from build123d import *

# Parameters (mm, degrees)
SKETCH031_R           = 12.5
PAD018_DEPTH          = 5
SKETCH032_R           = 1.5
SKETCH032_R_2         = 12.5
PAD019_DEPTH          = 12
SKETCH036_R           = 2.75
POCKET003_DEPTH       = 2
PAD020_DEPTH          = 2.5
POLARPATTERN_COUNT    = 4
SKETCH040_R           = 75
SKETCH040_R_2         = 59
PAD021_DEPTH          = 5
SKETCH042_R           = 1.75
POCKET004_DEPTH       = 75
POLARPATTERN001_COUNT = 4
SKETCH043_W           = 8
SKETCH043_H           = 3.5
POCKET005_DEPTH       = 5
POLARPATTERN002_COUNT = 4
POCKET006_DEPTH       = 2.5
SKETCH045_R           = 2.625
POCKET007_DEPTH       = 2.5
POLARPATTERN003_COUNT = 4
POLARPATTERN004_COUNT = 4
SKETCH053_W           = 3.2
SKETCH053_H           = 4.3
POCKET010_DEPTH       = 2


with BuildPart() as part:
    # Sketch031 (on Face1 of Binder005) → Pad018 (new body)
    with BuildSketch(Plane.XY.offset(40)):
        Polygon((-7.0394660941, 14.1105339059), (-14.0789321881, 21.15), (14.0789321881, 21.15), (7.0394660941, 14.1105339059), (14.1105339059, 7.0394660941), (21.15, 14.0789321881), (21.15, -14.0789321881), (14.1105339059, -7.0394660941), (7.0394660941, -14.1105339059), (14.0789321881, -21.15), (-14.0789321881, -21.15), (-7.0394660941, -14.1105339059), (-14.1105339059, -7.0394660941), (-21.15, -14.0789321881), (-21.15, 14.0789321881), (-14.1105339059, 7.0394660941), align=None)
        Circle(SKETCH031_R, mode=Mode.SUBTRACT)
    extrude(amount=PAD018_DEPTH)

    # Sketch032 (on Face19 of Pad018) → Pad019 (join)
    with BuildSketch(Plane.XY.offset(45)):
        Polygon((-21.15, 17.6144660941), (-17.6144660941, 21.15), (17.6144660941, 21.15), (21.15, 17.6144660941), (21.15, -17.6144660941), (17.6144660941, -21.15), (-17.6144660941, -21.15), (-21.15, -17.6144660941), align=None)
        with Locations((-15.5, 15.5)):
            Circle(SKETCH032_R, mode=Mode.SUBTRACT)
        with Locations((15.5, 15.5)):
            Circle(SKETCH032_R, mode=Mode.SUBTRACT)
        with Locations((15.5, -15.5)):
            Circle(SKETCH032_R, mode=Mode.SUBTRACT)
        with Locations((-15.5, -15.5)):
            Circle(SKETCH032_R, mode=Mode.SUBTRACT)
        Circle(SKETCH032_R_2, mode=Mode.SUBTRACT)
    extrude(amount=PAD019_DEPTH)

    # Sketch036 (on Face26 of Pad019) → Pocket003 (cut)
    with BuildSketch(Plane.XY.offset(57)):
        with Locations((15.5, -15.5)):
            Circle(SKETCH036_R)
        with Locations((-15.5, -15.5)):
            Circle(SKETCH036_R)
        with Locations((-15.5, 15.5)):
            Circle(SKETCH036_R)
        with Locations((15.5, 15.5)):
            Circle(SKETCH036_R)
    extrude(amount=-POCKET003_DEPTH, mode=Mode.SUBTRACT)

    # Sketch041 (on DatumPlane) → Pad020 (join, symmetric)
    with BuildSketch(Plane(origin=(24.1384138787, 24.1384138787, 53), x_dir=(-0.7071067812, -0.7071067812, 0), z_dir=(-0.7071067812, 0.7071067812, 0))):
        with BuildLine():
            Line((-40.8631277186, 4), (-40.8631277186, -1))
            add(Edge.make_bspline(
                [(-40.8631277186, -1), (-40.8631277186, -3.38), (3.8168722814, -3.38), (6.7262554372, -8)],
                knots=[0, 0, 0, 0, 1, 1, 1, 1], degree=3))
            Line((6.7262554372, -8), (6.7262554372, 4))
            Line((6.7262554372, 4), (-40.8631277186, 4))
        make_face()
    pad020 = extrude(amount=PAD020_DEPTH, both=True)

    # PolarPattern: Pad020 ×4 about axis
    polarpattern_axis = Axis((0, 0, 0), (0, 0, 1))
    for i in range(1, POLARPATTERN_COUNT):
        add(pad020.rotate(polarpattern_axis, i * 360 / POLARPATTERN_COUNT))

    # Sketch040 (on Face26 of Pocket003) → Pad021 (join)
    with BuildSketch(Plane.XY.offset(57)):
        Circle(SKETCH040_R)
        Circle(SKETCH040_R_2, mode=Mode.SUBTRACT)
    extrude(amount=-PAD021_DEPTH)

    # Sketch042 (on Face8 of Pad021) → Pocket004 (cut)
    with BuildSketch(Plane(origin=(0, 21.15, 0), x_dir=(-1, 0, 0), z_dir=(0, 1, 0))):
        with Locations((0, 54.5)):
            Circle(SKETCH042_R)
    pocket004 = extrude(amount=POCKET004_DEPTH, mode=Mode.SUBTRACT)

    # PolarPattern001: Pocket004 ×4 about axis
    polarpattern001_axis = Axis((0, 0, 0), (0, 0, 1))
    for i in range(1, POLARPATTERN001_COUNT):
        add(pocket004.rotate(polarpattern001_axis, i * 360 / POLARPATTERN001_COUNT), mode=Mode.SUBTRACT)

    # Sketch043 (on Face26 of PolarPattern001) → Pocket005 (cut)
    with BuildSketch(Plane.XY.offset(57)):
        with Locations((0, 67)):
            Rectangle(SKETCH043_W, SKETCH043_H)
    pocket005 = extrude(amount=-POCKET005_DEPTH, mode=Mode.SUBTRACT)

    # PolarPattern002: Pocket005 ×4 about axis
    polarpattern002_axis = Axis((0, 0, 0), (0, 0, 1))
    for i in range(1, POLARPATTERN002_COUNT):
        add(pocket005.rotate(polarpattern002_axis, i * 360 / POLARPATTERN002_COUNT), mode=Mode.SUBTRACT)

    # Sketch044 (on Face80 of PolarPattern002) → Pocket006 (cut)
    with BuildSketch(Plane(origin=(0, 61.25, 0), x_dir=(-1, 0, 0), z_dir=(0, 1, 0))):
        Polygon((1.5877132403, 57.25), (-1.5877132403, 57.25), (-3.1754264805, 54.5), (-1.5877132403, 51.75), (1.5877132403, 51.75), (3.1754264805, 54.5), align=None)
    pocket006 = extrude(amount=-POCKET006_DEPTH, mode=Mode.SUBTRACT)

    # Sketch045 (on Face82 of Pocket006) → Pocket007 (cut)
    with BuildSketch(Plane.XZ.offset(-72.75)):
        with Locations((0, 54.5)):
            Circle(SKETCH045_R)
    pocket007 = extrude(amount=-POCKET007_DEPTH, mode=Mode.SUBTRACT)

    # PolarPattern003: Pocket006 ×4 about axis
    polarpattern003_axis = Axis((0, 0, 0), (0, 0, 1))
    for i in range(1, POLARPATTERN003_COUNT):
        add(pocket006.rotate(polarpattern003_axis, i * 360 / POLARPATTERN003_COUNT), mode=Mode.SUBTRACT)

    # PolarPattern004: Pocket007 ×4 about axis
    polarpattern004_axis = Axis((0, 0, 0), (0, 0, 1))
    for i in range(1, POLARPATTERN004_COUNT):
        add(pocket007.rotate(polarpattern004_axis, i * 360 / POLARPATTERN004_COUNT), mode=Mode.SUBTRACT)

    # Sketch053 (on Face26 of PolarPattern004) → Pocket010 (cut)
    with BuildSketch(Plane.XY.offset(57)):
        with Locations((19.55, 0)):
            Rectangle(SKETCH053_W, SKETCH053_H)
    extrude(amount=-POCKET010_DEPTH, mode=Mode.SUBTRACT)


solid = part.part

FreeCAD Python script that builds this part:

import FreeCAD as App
import Part
import Sketcher
Q = App.Units.Quantity

doc = App.newDocument("Part")
body = doc.addObject("PartDesign::Body", "Body")

sketch1 = doc.addObject("Sketcher::SketchObject", "Sketch")
body.addObject(sketch1)
sketch1.AttachmentSupport = (doc.XY_Plane, [""])
sketch1.MapMode = "FlatFace"
sketch1.AttachmentOffset = App.Placement(App.Vector(0, 0, 40), App.Rotation())
sketch1.addGeometry(Part.LineSegment(App.Vector(-14, 21, 0), App.Vector(-7, 14, 0)), False)
sketch1.addGeometry(Part.LineSegment(App.Vector(-7, 14, 0), App.Vector(-14, 7, 0)), False)
sketch1.addGeometry(Part.LineSegment(App.Vector(-14, 7, 0), App.Vector(-21, 14, 0)), False)
sketch1.addGeometry(Part.LineSegment(App.Vector(-21, 14, 0), App.Vector(-21, -14, 0)), False)
sketch1.addGeometry(Part.LineSegment(App.Vector(-21, -14, 0), App.Vector(-14, -7, 0)), False)
sketch1.addGeometry(Part.LineSegment(App.Vector(-14, -7, 0), App.Vector(-7, -14, 0)), False)
sketch1.addGeometry(Part.LineSegment(App.Vector(-7, -14, 0), App.Vector(-14, -21, 0)), False)
sketch1.addGeometry(Part.LineSegment(App.Vector(-14, -21, 0), App.Vector(14, -21, 0)), False)
sketch1.addGeometry(Part.LineSegment(App.Vector(14, -21, 0), App.Vector(7, -14, 0)), False)
sketch1.addGeometry(Part.LineSegment(App.Vector(7, -14, 0), App.Vector(14, -7, 0)), False)
sketch1.addGeometry(Part.LineSegment(App.Vector(14, -7, 0), App.Vector(21, -14, 0)), False)
sketch1.addGeometry(Part.LineSegment(App.Vector(21, -14, 0), App.Vector(21, 14, 0)), False)
sketch1.addGeometry(Part.LineSegment(App.Vector(21, 14, 0), App.Vector(14, 7, 0)), False)
sketch1.addGeometry(Part.LineSegment(App.Vector(14, 7, 0), App.Vector(7, 14, 0)), False)
sketch1.addGeometry(Part.LineSegment(App.Vector(7, 14, 0), App.Vector(14, 21, 0)), False)
sketch1.addGeometry(Part.LineSegment(App.Vector(14, 21, 0), App.Vector(-14, 21, 0)), False)
sketch1.addGeometry(Part.Circle(App.Vector(0, 0, 0), App.Vector(0, 0, 1), 12), False)
sketch1.addConstraint(Sketcher.Constraint("Coincident", 0, 2, 1, 1))
sketch1.addConstraint(Sketcher.Constraint("Coincident", 1, 2, 2, 1))
sketch1.addConstraint(Sketcher.Constraint("Coincident", 2, 2, 3, 1))
sketch1.addConstraint(Sketcher.Constraint("Coincident", 3, 2, 4, 1))
sketch1.addConstraint(Sketcher.Constraint("Coincident", 4, 2, 5, 1))
sketch1.addConstraint(Sketcher.Constraint("Coincident", 5, 2, 6, 1))
sketch1.addConstraint(Sketcher.Constraint("Coincident", 6, 2, 7, 1))
sketch1.addConstraint(Sketcher.Constraint("Coincident", 7, 2, 8, 1))
sketch1.addConstraint(Sketcher.Constraint("Coincident", 8, 2, 9, 1))
sketch1.addConstraint(Sketcher.Constraint("Coincident", 9, 2, 10, 1))
sketch1.addConstraint(Sketcher.Constraint("Coincident", 10, 2, 11, 1))
sketch1.addConstraint(Sketcher.Constraint("Coincident", 11, 2, 12, 1))
sketch1.addConstraint(Sketcher.Constraint("Coincident", 12, 2, 13, 1))
sketch1.addConstraint(Sketcher.Constraint("Coincident", 13, 2, 14, 1))
sketch1.addConstraint(Sketcher.Constraint("Coincident", 14, 2, 15, 1))
sketch1.addConstraint(Sketcher.Constraint("Coincident", 15, 2, 0, 1))
sketch1.addConstraint(Sketcher.Constraint("Vertical", 3))
sketch1.addConstraint(Sketcher.Constraint("Horizontal", 7))
sketch1.addConstraint(Sketcher.Constraint("Vertical", 11))
sketch1.addConstraint(Sketcher.Constraint("Horizontal", 15))
sketch1.addConstraint(Sketcher.Constraint("Coincident", 16, 3, -1, 1))
sketch1.addConstraint(Sketcher.Constraint("Symmetric", 0, 2, 8, 2, -1, 1))
sketch1.addConstraint(Sketcher.Constraint("Symmetric", 1, 2, 9, 2, -1, 1))
sketch1.addConstraint(Sketcher.Constraint("Symmetric", 2, 2, 10, 2, -1, 1))
sketch1.addConstraint(Sketcher.Constraint("Symmetric", 4, 2, 12, 2, -1, 1))
sketch1.addConstraint(Sketcher.Constraint("Symmetric", 5, 2, 13, 2, -1, 1))
sketch1.addConstraint(Sketcher.Constraint("Symmetric", 6, 2, 14, 2, -1, 1))
sketch1.addConstraint(Sketcher.Constraint("Symmetric", 5, 2, 8, 2, -2))
sketch1.addConstraint(Sketcher.Constraint("Symmetric", 4, 2, 9, 2, -2))
sketch1.addConstraint(Sketcher.Constraint("Perpendicular", 0, 1))
sketch1.addConstraint(Sketcher.Constraint("Perpendicular", 1, 2))
sketch1.addConstraint(Sketcher.Constraint("Perpendicular", 2, 4))
sketch1.addConstraint(Sketcher.Constraint("Perpendicular", 4, 5))
sketch1.addConstraint(Sketcher.Constraint("Perpendicular", 5, 6))
sketch1.addConstraint(Sketcher.Constraint("Perpendicular", 6, 8))
sketch1.addConstraint(Sketcher.Constraint("Perpendicular", 10, 12))
sketch1.addConstraint(Sketcher.Constraint("Equal", 15, 3))
sketch1.addConstraint(Sketcher.Constraint("Equal", 0, 2))
sketch1.addConstraint(Sketcher.Constraint("Diameter", 16, Q("25 mm")))
sketch1.addConstraint(Sketcher.Constraint("Distance", 1, Q("10 mm")))
sketch1.addConstraint(Sketcher.Constraint("DistanceX", 2, 2, -1, 1, Q("21.15 mm")))
sketch1.addConstraint(Sketcher.Constraint("DistanceY", 4, 2, 0, 2, Q("21.15 mm")))
pad1 = doc.addObject("PartDesign::Pad", "Pad")
body.addObject(pad1)
pad1.Profile = sketch1
pad1.Length = 5

sketch2 = doc.addObject("Sketcher::SketchObject", "Sketch001")
body.addObject(sketch2)
sketch2.AttachmentSupport = (doc.XY_Plane, [""])
sketch2.MapMode = "FlatFace"
sketch2.AttachmentOffset = App.Placement(App.Vector(0, 0, 45), App.Rotation())
sketch2.addGeometry(Part.LineSegment(App.Vector(-17.6, 21.1, 0), App.Vector(-21.1, 17.6, 0)), False)
sketch2.addGeometry(Part.LineSegment(App.Vector(-21.1, 17.6, 0), App.Vector(-21.1, -17.6, 0)), False)
sketch2.addGeometry(Part.LineSegment(App.Vector(-21.1, -17.6, 0), App.Vector(-17.6, -21.1, 0)), False)
sketch2.addGeometry(Part.LineSegment(App.Vector(-17.6, -21.1, 0), App.Vector(17.6, -21.1, 0)), False)
sketch2.addGeometry(Part.LineSegment(App.Vector(17.6, -21.1, 0), App.Vector(21.1, -17.6, 0)), False)
sketch2.addGeometry(Part.LineSegment(App.Vector(21.1, -17.6, 0), App.Vector(21.1, 17.6, 0)), False)
sketch2.addGeometry(Part.LineSegment(App.Vector(21.1, 17.6, 0), App.Vector(17.6, 21.1, 0)), False)
sketch2.addGeometry(Part.LineSegment(App.Vector(17.6, 21.1, 0), App.Vector(-17.6, 21.1, 0)), False)
sketch2.addGeometry(Part.Circle(App.Vector(15.5, -15.5, 0), App.Vector(0, 0, 1), 1.5), False)
sketch2.addGeometry(Part.Circle(App.Vector(-15.5, -15.5, 0), App.Vector(0, 0, 1), 1.5), False)
sketch2.addGeometry(Part.Circle(App.Vector(15.5, 15.5, 0), App.Vector(0, 0, 1), 1.5), False)
sketch2.addGeometry(Part.Circle(App.Vector(0, 0, 0), App.Vector(0, 0, 1), 12.5), False)
sketch2.addGeometry(Part.Circle(App.Vector(-15.5, 15.5, 0), App.Vector(0, 0, 1), 1.5), False)
sketch2.addConstraint(Sketcher.Constraint("Coincident", 0, 2, 1, 1))
sketch2.addConstraint(Sketcher.Constraint("Coincident", 1, 2, 2, 1))
sketch2.addConstraint(Sketcher.Constraint("Coincident", 2, 2, 3, 1))
sketch2.addConstraint(Sketcher.Constraint("Coincident", 3, 2, 4, 1))
sketch2.addConstraint(Sketcher.Constraint("Coincident", 4, 2, 5, 1))
sketch2.addConstraint(Sketcher.Constraint("Coincident", 5, 2, 6, 1))
sketch2.addConstraint(Sketcher.Constraint("Coincident", 6, 2, 7, 1))
sketch2.addConstraint(Sketcher.Constraint("Coincident", 7, 2, 0, 1))
sketch2.addConstraint(Sketcher.Constraint("Vertical", 1))
sketch2.addConstraint(Sketcher.Constraint("Horizontal", 3))
sketch2.addConstraint(Sketcher.Constraint("Vertical", 5))
sketch2.addConstraint(Sketcher.Constraint("Horizontal", 7))
sketch2.addConstraint(Sketcher.Constraint("Coincident", 11, 3, -1, 1))
sketch2.addConstraint(Sketcher.Constraint("Equal", 8, 9))
sketch2.addConstraint(Sketcher.Constraint("Equal", 9, 10))
sketch2.addConstraint(Sketcher.Constraint("Equal", 10, 12))
sketch2.addConstraint(Sketcher.Constraint("Symmetric", 9, 3, 10, 3, -1, 1))
sketch2.addConstraint(Sketcher.Constraint("Symmetric", 8, 3, 12, 3, -1, 1))
sketch2.addConstraint(Sketcher.Constraint("Symmetric", 0, 2, 4, 2, -1, 1))
sketch2.addConstraint(Sketcher.Constraint("Symmetric", 2, 2, 6, 2, -1, 1))
sketch2.addConstraint(Sketcher.Constraint("Symmetric", 8, 3, 9, 3, -2))
sketch2.addConstraint(Sketcher.Constraint("Perpendicular", 0, 2))
sketch2.addConstraint(Sketcher.Constraint("Perpendicular", 2, 4))
sketch2.addConstraint(Sketcher.Constraint("Perpendicular", 4, 6))
sketch2.addConstraint(Sketcher.Constraint("Horizontal", 1, 2, 4, 2))
sketch2.addConstraint(Sketcher.Constraint("Vertical", 3, 2, 6, 2))
sketch2.addConstraint(Sketcher.Constraint("Equal", 7, 1))
sketch2.addConstraint(Sketcher.Constraint("Diameter", 8, Q("3 mm")))
sketch2.addConstraint(Sketcher.Constraint("Diameter", 11, Q("25 mm")))
sketch2.addConstraint(Sketcher.Constraint("Distance", 0, Q("5 mm")))
sketch2.addConstraint(Sketcher.Constraint("DistanceX", 9, 3, 8, 3, Q("31 mm")))
sketch2.addConstraint(Sketcher.Constraint("DistanceY", 8, 3, 10, 3, Q("31 mm")))
sketch2.addConstraint(Sketcher.Constraint("DistanceX", 0, 2, -1, 1, Q("21.15 mm")))
pad2 = doc.addObject("PartDesign::Pad", "Pad001")
body.addObject(pad2)
pad2.Profile = sketch2
pad2.Length = 12

sketch3 = doc.addObject("Sketcher::SketchObject", "Sketch002")
body.addObject(sketch3)
sketch3.AttachmentSupport = (doc.XY_Plane, [""])
sketch3.MapMode = "FlatFace"
sketch3.AttachmentOffset = App.Placement(App.Vector(0, 0, 57), App.Rotation())
sketch3.addGeometry(Part.Circle(App.Vector(15.5, -15.5, 0), App.Vector(0, 0, 1), 2.8), False)
sketch3.addGeometry(Part.Circle(App.Vector(-15.5, -15.5, 0), App.Vector(0, 0, 1), 2.8), False)
sketch3.addGeometry(Part.Circle(App.Vector(-15.5, 15.5, 0), App.Vector(0, 0, 1), 2.8), False)
sketch3.addGeometry(Part.Circle(App.Vector(15.5, 15.5, 0), App.Vector(0, 0, 1), 2.8), False)
sketch3.addConstraint(Sketcher.Constraint("Equal", 0, 1))
sketch3.addConstraint(Sketcher.Constraint("Equal", 1, 2))
sketch3.addConstraint(Sketcher.Constraint("Equal", 2, 3))
sketch3.addConstraint(Sketcher.Constraint("Symmetric", 0, 3, 2, 3, -1, 1))
sketch3.addConstraint(Sketcher.Constraint("Symmetric", 1, 3, 3, 3, -1, 1))
sketch3.addConstraint(Sketcher.Constraint("Symmetric", 0, 3, 1, 3, -2))
sketch3.addConstraint(Sketcher.Constraint("Diameter", 0, Q("5.5 mm")))
sketch3.addConstraint(Sketcher.Constraint("DistanceX", 1, 3, 0, 3, Q("31 mm")))
sketch3.addConstraint(Sketcher.Constraint("DistanceY", 1, 3, 2, 3, Q("31 mm")))
pocket1 = doc.addObject("PartDesign::Pocket", "Pocket")
body.addObject(pocket1)
pocket1.Profile = sketch3
pocket1.Length = 2

sketch4 = doc.addObject("Sketcher::SketchObject", "Sketch003")
body.addObject(sketch4)
sketch4.Placement = App.Placement(App.Vector(24.138414, 24.138414, 53), App.Rotation(App.Vector(-0.707106781, -0.707106781, 0), App.Vector(0, 0, 0.999999999), App.Vector(-0.707106781, 0.707106781, 0), "ZXY"))
sketch4.addGeometry(Part.LineSegment(App.Vector(-40.863128, 4, 0), App.Vector(-40.863128, -1, 0)), False)
sketch4.addGeometry(Part.BSplineCurve([App.Vector(-40.863128, -1, 0), App.Vector(-40.863128, -3.38, 0), App.Vector(3.816872, -3.38, 0), App.Vector(6.726255, -8, 0)], [4, 4], [0, 1], False, 3, [1, 1, 1, 1], False), False)
sketch4.addGeometry(Part.LineSegment(App.Vector(6.726255, -8, 0), App.Vector(6.726255, 4, 0)), False)
sketch4.addGeometry(Part.LineSegment(App.Vector(6.726255, 4, 0), App.Vector(-40.863128, 4, 0)), False)
sketch4.addConstraint(Sketcher.Constraint("Block", 1))
sketch4.addConstraint(Sketcher.Constraint("Coincident", 0, 2, 1, 1))
sketch4.addConstraint(Sketcher.Constraint("Coincident", 1, 2, 2, 1))
sketch4.addConstraint(Sketcher.Constraint("Coincident", 2, 2, 3, 1))
sketch4.addConstraint(Sketcher.Constraint("Coincident", 3, 2, 0, 1))
sketch4.addConstraint(Sketcher.Constraint("Vertical", 0))
sketch4.addConstraint(Sketcher.Constraint("Vertical", 2))
sketch4.addConstraint(Sketcher.Constraint("Horizontal", 3))
sketch4.addConstraint(Sketcher.Constraint("DistanceY", 0, 2, 0, 1, Q("5 mm")))
pad3 = doc.addObject("PartDesign::Pad", "Pad002")
body.addObject(pad3)
pad3.Profile = sketch4
pad3.Length = 5
pad3.Midplane = True
doc.recompute()

polarpattern = doc.addObject("PartDesign::PolarPattern", "PolarPattern")
body.addObject(polarpattern)
polarpattern.Originals = [pad3]
polarpattern.Axis = (doc.Z_Axis, [""])
polarpattern.Angle = 360
polarpattern.Occurrences = 4
body.Tip = polarpattern

sketch5 = doc.addObject("Sketcher::SketchObject", "Sketch004")
body.addObject(sketch5)
sketch5.AttachmentSupport = (doc.XY_Plane, [""])
sketch5.MapMode = "FlatFace"
sketch5.AttachmentOffset = App.Placement(App.Vector(0, 0, 57), App.Rotation())
sketch5.addGeometry(Part.Circle(App.Vector(0, 0, 0), App.Vector(0, 0, 1), 75), False)
sketch5.addGeometry(Part.Circle(App.Vector(0, 0, 0), App.Vector(0, 0, 1), 59), False)
sketch5.addConstraint(Sketcher.Constraint("Coincident", 0, 3, -1, 1))
sketch5.addConstraint(Sketcher.Constraint("Coincident", 1, 3, -1, 1))
sketch5.addConstraint(Sketcher.Constraint("Diameter", 0, Q("150 mm")))
sketch5.addConstraint(Sketcher.Constraint("Diameter", 1, Q("118 mm")))
pad4 = doc.addObject("PartDesign::Pad", "Pad003")
body.addObject(pad4)
pad4.Profile = sketch5
pad4.Length = 5
pad4.Reversed = True

sketch6 = doc.addObject("Sketcher::SketchObject", "Sketch005")
body.addObject(sketch6)
sketch6.AttachmentSupport = (doc.XZ_Plane, [""])
sketch6.MapMode = "FlatFace"
sketch6.AttachmentOffset = App.Placement(App.Vector(0, 0, -21.15), App.Rotation())
sketch6.addGeometry(Part.Circle(App.Vector(0, 54.5, 0), App.Vector(0, 0, 1), 1.8), False)
sketch6.addConstraint(Sketcher.Constraint("PointOnObject", 0, 3, -2))
sketch6.addConstraint(Sketcher.Constraint("Diameter", 0, Q("3.5 mm")))
sketch6.addConstraint(Sketcher.Constraint("DistanceY", -1, 1, 0, 3, Q("54.5 mm")))
pocket2 = doc.addObject("PartDesign::Pocket", "Pocket001")
body.addObject(pocket2)
pocket2.Profile = sketch6
pocket2.Length = 75
doc.recompute()

polarpattern2 = doc.addObject("PartDesign::PolarPattern", "PolarPattern001")
body.addObject(polarpattern2)
polarpattern2.Originals = [pocket2]
polarpattern2.Axis = (doc.Z_Axis, [""])
polarpattern2.Angle = 360
polarpattern2.Occurrences = 4
body.Tip = polarpattern2

sketch7 = doc.addObject("Sketcher::SketchObject", "Sketch006")
body.addObject(sketch7)
sketch7.AttachmentSupport = (doc.XY_Plane, [""])
sketch7.MapMode = "FlatFace"
sketch7.AttachmentOffset = App.Placement(App.Vector(0, 0, 57), App.Rotation())
sketch7.addGeometry(Part.LineSegment(App.Vector(-4, 68.8, 0), App.Vector(-4, 65.2, 0)), False)
sketch7.addGeometry(Part.LineSegment(App.Vector(-4, 65.2, 0), App.Vector(4, 65.2, 0)), False)
sketch7.addGeometry(Part.LineSegment(App.Vector(4, 65.2, 0), App.Vector(4, 68.8, 0)), False)
sketch7.addGeometry(Part.LineSegment(App.Vector(4, 68.8, 0), App.Vector(-4, 68.8, 0)), False)
sketch7.addConstraint(Sketcher.Constraint("Coincident", 0, 2, 1, 1))
sketch7.addConstraint(Sketcher.Constraint("Coincident", 1, 2, 2, 1))
sketch7.addConstraint(Sketcher.Constraint("Coincident", 2, 2, 3, 1))
sketch7.addConstraint(Sketcher.Constraint("Coincident", 3, 2, 0, 1))
sketch7.addConstraint(Sketcher.Constraint("Vertical", 0))
sketch7.addConstraint(Sketcher.Constraint("Horizontal", 1))
sketch7.addConstraint(Sketcher.Constraint("Vertical", 2))
sketch7.addConstraint(Sketcher.Constraint("Horizontal", 3))
sketch7.addConstraint(Sketcher.Constraint("DistanceX", 1, 1, 1, 2, Q("8 mm")))
sketch7.addConstraint(Sketcher.Constraint("DistanceY", 0, 2, 0, 1, Q("3.5 mm")))
sketch7.addConstraint(Sketcher.Constraint("DistanceX", 0, 2, -1, 1, Q("4 mm")))
sketch7.addConstraint(Sketcher.Constraint("DistanceY", -1, 1, 0, 2, Q("65.25 mm")))
pocket3 = doc.addObject("PartDesign::Pocket", "Pocket002")
body.addObject(pocket3)
pocket3.Profile = sketch7
pocket3.Length = 5
doc.recompute()

polarpattern3 = doc.addObject("PartDesign::PolarPattern", "PolarPattern002")
body.addObject(polarpattern3)
polarpattern3.Originals = [pocket3]
polarpattern3.Axis = (doc.Z_Axis, [""])
polarpattern3.Angle = 360
polarpattern3.Occurrences = 4
body.Tip = polarpattern3

sketch8 = doc.addObject("Sketcher::SketchObject", "Sketch007")
body.addObject(sketch8)
sketch8.AttachmentSupport = (doc.XZ_Plane, [""])
sketch8.MapMode = "FlatFace"
sketch8.AttachmentOffset = App.Placement(App.Vector(0, 0, -61.25), App.Rotation())
sketch8.addGeometry(Part.LineSegment(App.Vector(-1.6, 57.2, 0), App.Vector(1.6, 57.2, 0)), False)
sketch8.addGeometry(Part.LineSegment(App.Vector(1.6, 57.2, 0), App.Vector(3.2, 54.5, 0)), False)
sketch8.addGeometry(Part.LineSegment(App.Vector(3.2, 54.5, 0), App.Vector(1.6, 51.8, 0)), False)
sketch8.addGeometry(Part.LineSegment(App.Vector(1.6, 51.8, 0), App.Vector(-1.6, 51.8, 0)), False)
sketch8.addGeometry(Part.LineSegment(App.Vector(-1.6, 51.8, 0), App.Vector(-3.2, 54.5, 0)), False)
sketch8.addGeometry(Part.LineSegment(App.Vector(-3.2, 54.5, 0), App.Vector(-1.6, 57.2, 0)), False)
sketch8.addConstraint(Sketcher.Constraint("Coincident", 0, 2, 1, 1))
sketch8.addConstraint(Sketcher.Constraint("Coincident", 1, 2, 2, 1))
sketch8.addConstraint(Sketcher.Constraint("Coincident", 2, 2, 3, 1))
sketch8.addConstraint(Sketcher.Constraint("Coincident", 3, 2, 4, 1))
sketch8.addConstraint(Sketcher.Constraint("Coincident", 4, 2, 5, 1))
sketch8.addConstraint(Sketcher.Constraint("Coincident", 5, 2, 0, 1))
sketch8.addConstraint(Sketcher.Constraint("Horizontal", 0))
sketch8.addConstraint(Sketcher.Constraint("Horizontal", 3))
sketch8.addConstraint(Sketcher.Constraint("Symmetric", 1, 2, 4, 2, -2))
sketch8.addConstraint(Sketcher.Constraint("Parallel", 1, 4))
sketch8.addConstraint(Sketcher.Constraint("Parallel", 2, 5))
sketch8.addConstraint(Sketcher.Constraint("Vertical", 0, 2, 2, 2))
sketch8.addConstraint(Sketcher.Constraint("Vertical", 3, 2, 5, 2))
sketch8.addConstraint(Sketcher.Constraint("Angle", 1, Q("-60 deg")))
sketch8.addConstraint(Sketcher.Constraint("DistanceY", -1, 1, 1, 2, Q("54.5 mm")))
sketch8.addConstraint(Sketcher.Constraint("DistanceY", 2, 2, 0, 2, Q("5.5 mm")))
sketch8.addConstraint(Sketcher.Constraint("DistanceX", 0, 1, 0, 2, Q("3.175426 mm")))
pocket4 = doc.addObject("PartDesign::Pocket", "Pocket003")
body.addObject(pocket4)
pocket4.Profile = sketch8
pocket4.Length = 2.5
pocket4.Reversed = True

sketch9 = doc.addObject("Sketcher::SketchObject", "Sketch008")
body.addObject(sketch9)
sketch9.AttachmentSupport = (doc.XZ_Plane, [""])
sketch9.MapMode = "FlatFace"
sketch9.AttachmentOffset = App.Placement(App.Vector(0, 0, -72.75), App.Rotation())
sketch9.addGeometry(Part.Circle(App.Vector(0, 54.5, 0), App.Vector(0, 0, 1), 2.6), False)
sketch9.addConstraint(Sketcher.Constraint("PointOnObject", 0, 3, -2))
sketch9.addConstraint(Sketcher.Constraint("Diameter", 0, Q("5.25 mm")))
sketch9.addConstraint(Sketcher.Constraint("DistanceY", -1, 1, 0, 3, Q("54.5 mm")))
pocket5 = doc.addObject("PartDesign::Pocket", "Pocket004")
body.addObject(pocket5)
pocket5.Profile = sketch9
pocket5.Length = 2.5
doc.recompute()

polarpattern4 = doc.addObject("PartDesign::PolarPattern", "PolarPattern003")
body.addObject(polarpattern4)
polarpattern4.Originals = [pocket4]
polarpattern4.Axis = (doc.Z_Axis, [""])
polarpattern4.Angle = 360
polarpattern4.Occurrences = 4
body.Tip = polarpattern4
doc.recompute()

polarpattern5 = doc.addObject("PartDesign::PolarPattern", "PolarPattern004")
body.addObject(polarpattern5)
polarpattern5.Originals = [pocket5]
polarpattern5.Axis = (doc.Z_Axis, [""])
polarpattern5.Angle = 360
polarpattern5.Occurrences = 4
body.Tip = polarpattern5

sketch10 = doc.addObject("Sketcher::SketchObject", "Sketch009")
body.addObject(sketch10)
sketch10.AttachmentSupport = (doc.XY_Plane, [""])
sketch10.MapMode = "FlatFace"
sketch10.AttachmentOffset = App.Placement(App.Vector(0, 0, 57), App.Rotation())
sketch10.addGeometry(Part.LineSegment(App.Vector(17.9, 2.1, 0), App.Vector(17.9, -2.1, 0)), False)
sketch10.addGeometry(Part.LineSegment(App.Vector(17.9, -2.1, 0), App.Vector(21.1, -2.1, 0)), False)
sketch10.addGeometry(Part.LineSegment(App.Vector(21.1, -2.1, 0), App.Vector(21.1, 2.1, 0)), False)
sketch10.addGeometry(Part.LineSegment(App.Vector(21.1, 2.1, 0), App.Vector(17.9, 2.1, 0)), False)
sketch10.addConstraint(Sketcher.Constraint("Coincident", 0, 2, 1, 1))
sketch10.addConstraint(Sketcher.Constraint("Coincident", 1, 2, 2, 1))
sketch10.addConstraint(Sketcher.Constraint("Coincident", 2, 2, 3, 1))
sketch10.addConstraint(Sketcher.Constraint("Coincident", 3, 2, 0, 1))
sketch10.addConstraint(Sketcher.Constraint("Vertical", 0))
sketch10.addConstraint(Sketcher.Constraint("Horizontal", 1))
sketch10.addConstraint(Sketcher.Constraint("Vertical", 2))
sketch10.addConstraint(Sketcher.Constraint("Horizontal", 3))
sketch10.addConstraint(Sketcher.Constraint("DistanceX", 1, 1, 1, 2, Q("3.2 mm")))
sketch10.addConstraint(Sketcher.Constraint("DistanceY", 0, 2, 0, 1, Q("4.3 mm")))
sketch10.addConstraint(Sketcher.Constraint("DistanceX", -1, 1, 0, 2, Q("17.95 mm")))
sketch10.addConstraint(Sketcher.Constraint("DistanceY", 0, 2, -1, 1, Q("2.15 mm")))
pocket6 = doc.addObject("PartDesign::Pocket", "Pocket005")
body.addObject(pocket6)
pocket6.Profile = sketch10
pocket6.Length = 2

doc.recompute()
